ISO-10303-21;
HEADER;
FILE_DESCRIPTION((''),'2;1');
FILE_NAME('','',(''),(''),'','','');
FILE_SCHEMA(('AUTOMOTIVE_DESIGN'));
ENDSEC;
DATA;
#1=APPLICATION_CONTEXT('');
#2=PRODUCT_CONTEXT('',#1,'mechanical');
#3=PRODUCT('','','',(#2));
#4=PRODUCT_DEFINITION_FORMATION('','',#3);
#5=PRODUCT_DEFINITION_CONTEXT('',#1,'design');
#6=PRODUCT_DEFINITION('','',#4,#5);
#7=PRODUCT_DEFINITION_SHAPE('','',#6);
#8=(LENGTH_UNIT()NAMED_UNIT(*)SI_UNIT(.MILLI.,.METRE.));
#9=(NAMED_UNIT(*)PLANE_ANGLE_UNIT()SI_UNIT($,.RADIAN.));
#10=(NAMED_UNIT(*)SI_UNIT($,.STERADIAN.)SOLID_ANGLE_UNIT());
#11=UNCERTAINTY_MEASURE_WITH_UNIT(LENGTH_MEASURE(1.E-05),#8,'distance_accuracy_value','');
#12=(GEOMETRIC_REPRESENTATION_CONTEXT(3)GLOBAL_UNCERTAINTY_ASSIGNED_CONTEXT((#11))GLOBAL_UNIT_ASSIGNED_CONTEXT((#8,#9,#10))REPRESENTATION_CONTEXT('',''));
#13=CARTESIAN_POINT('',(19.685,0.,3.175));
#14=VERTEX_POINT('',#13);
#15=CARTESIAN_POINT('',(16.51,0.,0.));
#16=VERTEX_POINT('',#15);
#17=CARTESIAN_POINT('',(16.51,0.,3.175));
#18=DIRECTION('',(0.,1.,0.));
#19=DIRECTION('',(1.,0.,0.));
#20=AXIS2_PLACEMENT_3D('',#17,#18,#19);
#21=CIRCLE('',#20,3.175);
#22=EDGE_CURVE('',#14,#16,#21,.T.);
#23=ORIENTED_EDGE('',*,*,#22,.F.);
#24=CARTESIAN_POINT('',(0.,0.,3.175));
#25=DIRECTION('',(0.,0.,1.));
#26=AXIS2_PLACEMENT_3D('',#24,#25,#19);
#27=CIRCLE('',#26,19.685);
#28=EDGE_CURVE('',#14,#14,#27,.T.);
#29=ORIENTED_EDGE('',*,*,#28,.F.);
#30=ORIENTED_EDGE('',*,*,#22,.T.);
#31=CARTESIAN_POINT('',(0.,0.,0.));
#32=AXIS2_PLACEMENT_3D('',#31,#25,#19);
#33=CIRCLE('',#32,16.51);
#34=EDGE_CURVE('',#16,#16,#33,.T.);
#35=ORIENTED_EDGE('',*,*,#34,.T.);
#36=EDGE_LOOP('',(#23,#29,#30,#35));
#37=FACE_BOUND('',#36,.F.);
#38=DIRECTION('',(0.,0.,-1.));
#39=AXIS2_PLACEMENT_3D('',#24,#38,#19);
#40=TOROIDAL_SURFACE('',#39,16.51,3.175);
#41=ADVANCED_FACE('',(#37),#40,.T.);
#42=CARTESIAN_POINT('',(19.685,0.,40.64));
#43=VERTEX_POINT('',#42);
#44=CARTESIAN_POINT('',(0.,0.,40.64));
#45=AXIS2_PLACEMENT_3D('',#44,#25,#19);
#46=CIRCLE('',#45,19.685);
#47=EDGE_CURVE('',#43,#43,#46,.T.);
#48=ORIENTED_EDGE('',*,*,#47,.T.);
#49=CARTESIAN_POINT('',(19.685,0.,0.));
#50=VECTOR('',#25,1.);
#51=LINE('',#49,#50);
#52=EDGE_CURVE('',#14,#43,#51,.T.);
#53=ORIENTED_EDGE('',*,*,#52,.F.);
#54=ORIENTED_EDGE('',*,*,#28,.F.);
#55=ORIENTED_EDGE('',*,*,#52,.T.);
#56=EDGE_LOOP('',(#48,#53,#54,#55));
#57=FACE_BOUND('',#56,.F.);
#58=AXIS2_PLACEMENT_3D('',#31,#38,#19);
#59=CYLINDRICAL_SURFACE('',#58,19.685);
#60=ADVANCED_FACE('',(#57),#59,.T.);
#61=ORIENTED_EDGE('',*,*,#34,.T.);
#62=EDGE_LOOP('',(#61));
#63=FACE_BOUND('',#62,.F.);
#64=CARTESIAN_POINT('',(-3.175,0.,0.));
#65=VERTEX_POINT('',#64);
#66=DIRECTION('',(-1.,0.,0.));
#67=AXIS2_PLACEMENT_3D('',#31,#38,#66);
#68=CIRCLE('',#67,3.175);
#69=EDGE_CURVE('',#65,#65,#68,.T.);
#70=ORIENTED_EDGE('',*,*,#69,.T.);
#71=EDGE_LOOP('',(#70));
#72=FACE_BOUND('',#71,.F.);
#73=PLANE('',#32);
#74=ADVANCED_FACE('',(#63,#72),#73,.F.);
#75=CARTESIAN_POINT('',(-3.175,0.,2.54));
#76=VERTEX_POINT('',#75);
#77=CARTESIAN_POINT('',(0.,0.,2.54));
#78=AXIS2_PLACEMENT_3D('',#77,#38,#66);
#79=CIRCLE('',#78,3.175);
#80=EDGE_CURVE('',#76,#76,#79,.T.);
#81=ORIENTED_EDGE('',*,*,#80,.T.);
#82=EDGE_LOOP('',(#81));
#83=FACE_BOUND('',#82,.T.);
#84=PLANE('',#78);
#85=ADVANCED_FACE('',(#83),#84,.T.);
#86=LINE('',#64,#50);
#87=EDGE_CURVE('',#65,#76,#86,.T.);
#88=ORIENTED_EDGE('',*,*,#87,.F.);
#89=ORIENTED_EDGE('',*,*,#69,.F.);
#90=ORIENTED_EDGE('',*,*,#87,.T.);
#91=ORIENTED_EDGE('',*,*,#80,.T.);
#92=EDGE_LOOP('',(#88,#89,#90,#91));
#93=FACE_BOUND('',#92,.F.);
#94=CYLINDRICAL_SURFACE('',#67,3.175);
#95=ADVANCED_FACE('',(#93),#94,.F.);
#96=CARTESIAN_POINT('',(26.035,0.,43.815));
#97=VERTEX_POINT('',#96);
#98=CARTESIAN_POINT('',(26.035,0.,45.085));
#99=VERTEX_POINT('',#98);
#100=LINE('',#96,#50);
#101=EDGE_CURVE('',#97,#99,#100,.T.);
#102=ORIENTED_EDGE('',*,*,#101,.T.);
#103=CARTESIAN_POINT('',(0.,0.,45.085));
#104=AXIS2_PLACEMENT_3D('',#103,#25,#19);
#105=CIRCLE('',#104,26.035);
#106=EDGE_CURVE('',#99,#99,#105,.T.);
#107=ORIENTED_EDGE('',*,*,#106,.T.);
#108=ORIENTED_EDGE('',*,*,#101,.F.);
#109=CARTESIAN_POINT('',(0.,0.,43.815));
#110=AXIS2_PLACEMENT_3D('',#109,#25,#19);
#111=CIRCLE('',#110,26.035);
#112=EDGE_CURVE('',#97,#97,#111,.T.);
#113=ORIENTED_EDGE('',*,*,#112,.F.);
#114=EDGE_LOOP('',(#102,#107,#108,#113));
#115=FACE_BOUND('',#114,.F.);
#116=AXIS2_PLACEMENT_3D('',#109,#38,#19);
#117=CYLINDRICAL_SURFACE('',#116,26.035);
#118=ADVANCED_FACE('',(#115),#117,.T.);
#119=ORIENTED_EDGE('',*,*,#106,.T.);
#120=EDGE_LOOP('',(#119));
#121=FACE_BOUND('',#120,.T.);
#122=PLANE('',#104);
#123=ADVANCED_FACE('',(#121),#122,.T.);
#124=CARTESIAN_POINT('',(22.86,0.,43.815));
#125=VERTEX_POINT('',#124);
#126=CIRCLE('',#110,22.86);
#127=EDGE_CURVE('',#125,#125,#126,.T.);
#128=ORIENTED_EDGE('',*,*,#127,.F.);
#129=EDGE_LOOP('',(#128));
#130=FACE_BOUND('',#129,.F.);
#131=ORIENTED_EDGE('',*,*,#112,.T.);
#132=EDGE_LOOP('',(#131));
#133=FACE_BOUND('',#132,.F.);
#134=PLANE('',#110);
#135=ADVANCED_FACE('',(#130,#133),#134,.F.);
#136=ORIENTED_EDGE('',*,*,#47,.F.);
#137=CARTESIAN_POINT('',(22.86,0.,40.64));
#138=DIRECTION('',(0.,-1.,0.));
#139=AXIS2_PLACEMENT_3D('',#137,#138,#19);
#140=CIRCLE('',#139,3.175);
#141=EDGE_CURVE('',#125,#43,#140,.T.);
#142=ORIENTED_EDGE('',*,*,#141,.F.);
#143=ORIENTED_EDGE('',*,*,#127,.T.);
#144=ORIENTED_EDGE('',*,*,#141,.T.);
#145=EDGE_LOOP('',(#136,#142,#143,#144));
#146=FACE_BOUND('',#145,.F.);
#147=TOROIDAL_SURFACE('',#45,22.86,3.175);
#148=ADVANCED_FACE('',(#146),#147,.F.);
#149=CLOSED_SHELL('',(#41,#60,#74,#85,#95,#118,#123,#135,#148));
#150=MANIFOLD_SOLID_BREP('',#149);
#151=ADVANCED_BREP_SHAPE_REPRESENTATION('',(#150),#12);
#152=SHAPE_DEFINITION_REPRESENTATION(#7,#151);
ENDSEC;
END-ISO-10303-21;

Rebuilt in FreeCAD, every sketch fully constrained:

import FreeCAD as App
import Part
import Sketcher
Q = App.Units.Quantity


def edges_at(feature, points):
    """Names of the edges that pass closest to the given points."""
    edges = feature.Shape.Edges
    near = lambda p: min(range(len(edges)), key=lambda i: edges[i].distToShape(Part.Vertex(*p))[0])
    return sorted({f"Edge{near(p) + 1}" for p in points})

doc = App.newDocument("Part")
body = doc.addObject("PartDesign::Body", "Body")

sketch1 = doc.addObject("Sketcher::SketchObject", "Sketch")
body.addObject(sketch1)
sketch1.AttachmentSupport = (doc.XY_Plane, [""])
sketch1.MapMode = "FlatFace"
sketch1.addGeometry(Part.Circle(App.Vector(0, 0, 0), App.Vector(0, 0, 1), 20), False)
sketch1.addConstraint([
    Sketcher.Constraint("Coincident", 0, 3, -1, 1),
    Sketcher.Constraint("Diameter", 0, Q("1.55 in")),
])
pad1 = doc.addObject("PartDesign::Pad", "Pad")
body.addObject(pad1)
pad1.Profile = sketch1
pad1.Length = Q("1.725 in")

sketch2 = doc.addObject("Sketcher::SketchObject", "Sketch001")
body.addObject(sketch2)
sketch2.AttachmentSupport = (doc.XY_Plane, [""])
sketch2.MapMode = "FlatFace"
sketch2.AttachmentOffset = App.Placement(App.Vector(0, 0, 1.725 * 25.4), App.Rotation())
sketch2.addGeometry(Part.Circle(App.Vector(0, 0, 0), App.Vector(0, 0, 1), 26), False)
sketch2.addConstraint([
    Sketcher.Constraint("Coincident", 0, 3, -1, 1),
    Sketcher.Constraint("Diameter", 0, Q("2.05 in")),
])
pad2 = doc.addObject("PartDesign::Pad", "Pad001")
body.addObject(pad2)
pad2.Profile = sketch2
pad2.Length = Q("0.05 in")
doc.recompute()

fillet = doc.addObject("PartDesign::Fillet", "Fillet")
body.addObject(fillet)
fillet.Base = (pad2, edges_at(pad2, [(-19.685, 0, 0), (-19.685, 0, 43.815)]))
fillet.Radius = Q("0.125 in")

sketch3 = doc.addObject("Sketcher::SketchObject", "Sketch002")
body.addObject(sketch3)
sketch3.AttachmentSupport = (doc.XY_Plane, [""])
sketch3.MapMode = "FlatFace"
sketch3.addGeometry(Part.Circle(App.Vector(0, 0, 0), App.Vector(0, 0, 1), 3.2), False)
sketch3.addConstraint([
    Sketcher.Constraint("Coincident", 0, 3, -1, 1),
    Sketcher.Constraint("Diameter", 0, Q("0.25 in")),
])
pocket1 = doc.addObject("PartDesign::Pocket", "Pocket")
body.addObject(pocket1)
pocket1.Profile = sketch3
pocket1.Length = Q("0.1 in")
pocket1.Reversed = True

doc.recompute()
